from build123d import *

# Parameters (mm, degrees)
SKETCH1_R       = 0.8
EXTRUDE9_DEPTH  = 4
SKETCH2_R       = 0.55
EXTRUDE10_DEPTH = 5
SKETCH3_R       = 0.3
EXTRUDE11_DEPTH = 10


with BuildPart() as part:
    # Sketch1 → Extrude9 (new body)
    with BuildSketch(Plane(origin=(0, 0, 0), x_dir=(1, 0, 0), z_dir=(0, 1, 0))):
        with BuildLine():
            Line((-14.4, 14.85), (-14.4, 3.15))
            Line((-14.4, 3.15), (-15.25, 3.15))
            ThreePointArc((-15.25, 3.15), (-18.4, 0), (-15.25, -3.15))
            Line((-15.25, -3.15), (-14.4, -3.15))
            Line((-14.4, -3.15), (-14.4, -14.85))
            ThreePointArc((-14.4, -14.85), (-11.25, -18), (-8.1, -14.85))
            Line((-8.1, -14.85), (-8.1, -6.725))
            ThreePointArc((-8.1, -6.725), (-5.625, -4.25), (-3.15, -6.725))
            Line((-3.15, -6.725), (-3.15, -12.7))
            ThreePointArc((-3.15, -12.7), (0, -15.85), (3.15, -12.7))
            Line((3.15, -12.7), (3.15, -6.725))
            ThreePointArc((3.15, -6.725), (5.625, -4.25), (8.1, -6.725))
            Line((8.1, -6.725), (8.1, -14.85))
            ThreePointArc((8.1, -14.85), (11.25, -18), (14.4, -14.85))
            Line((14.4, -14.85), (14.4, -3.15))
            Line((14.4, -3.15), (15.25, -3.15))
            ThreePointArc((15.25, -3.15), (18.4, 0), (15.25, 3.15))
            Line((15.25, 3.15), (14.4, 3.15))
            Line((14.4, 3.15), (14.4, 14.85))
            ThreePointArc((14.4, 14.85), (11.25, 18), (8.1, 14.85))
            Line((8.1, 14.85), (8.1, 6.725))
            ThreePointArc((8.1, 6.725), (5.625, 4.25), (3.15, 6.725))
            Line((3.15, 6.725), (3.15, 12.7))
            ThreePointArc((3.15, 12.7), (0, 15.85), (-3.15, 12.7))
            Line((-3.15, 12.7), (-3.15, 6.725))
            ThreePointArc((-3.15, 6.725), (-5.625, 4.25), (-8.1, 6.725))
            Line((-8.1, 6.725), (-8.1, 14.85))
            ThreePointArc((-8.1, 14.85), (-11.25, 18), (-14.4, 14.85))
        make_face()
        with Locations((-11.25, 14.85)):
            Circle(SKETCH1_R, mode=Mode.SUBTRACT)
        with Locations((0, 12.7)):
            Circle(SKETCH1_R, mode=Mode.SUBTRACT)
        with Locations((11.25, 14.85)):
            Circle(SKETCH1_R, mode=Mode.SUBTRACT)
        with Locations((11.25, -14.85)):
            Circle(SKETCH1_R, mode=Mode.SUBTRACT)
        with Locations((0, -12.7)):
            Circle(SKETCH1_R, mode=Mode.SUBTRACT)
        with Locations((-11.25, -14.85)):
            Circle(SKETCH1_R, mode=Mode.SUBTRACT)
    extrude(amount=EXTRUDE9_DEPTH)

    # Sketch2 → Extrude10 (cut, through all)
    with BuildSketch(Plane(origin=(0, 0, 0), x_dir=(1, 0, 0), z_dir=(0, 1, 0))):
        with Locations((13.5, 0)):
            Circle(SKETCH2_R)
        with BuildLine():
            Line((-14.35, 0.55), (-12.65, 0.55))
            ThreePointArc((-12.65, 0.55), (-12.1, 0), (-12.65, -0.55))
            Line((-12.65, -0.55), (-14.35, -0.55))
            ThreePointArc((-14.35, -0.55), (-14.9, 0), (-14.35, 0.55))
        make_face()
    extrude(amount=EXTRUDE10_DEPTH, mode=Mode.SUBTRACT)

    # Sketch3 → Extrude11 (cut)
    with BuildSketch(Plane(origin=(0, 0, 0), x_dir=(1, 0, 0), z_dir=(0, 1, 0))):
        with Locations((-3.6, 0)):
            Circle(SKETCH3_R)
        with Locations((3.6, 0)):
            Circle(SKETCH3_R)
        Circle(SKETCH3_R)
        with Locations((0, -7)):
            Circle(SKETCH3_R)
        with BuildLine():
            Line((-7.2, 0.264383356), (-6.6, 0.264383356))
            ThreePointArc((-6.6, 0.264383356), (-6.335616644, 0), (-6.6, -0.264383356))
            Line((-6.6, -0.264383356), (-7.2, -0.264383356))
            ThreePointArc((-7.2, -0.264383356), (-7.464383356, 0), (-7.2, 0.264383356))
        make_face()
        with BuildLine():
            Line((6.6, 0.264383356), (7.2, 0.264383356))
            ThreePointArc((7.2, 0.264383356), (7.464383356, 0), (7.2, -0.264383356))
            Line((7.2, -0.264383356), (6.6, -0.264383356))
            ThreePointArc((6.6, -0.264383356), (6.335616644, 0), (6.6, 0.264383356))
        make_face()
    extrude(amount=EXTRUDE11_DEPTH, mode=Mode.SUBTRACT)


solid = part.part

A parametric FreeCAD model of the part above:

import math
import FreeCAD as App
import Part
import Sketcher

doc = App.newDocument("Part")
params = doc.addObject("Spreadsheet::Sheet", "Params")
for row, (alias, value) in enumerate([
    ("sketch1_diameter", "1.6 mm"),
    ("sketch1_radius", "3.15 mm"),
    ("sketch1_height", "11.7 mm"),
    ("pad1_length", "4 mm"),
    ("sketch2_diameter", "1.1 mm"),
    ("sketch2_width", "1.7 mm"),
    ("sketch3_diameter", "0.6 mm"),
    ("sketch3_width", "0.6 mm"),
    ("pocket2_length", "10 mm"),
], start=1):
    params.set(f"A{row}", alias)
    params.set(f"B{row}", "=" + value)
    params.setAlias(f"B{row}", alias)

body = doc.addObject("PartDesign::Body", "Body")

# Sketch on XZ plane
sketch1 = doc.addObject("Sketcher::SketchObject", "Sketch")
body.addObject(sketch1)
sketch1.AttachmentSupport = (doc.XZ_Plane, [""])
sketch1.MapMode = "FlatFace"
sketch1.addGeometry(Part.LineSegment(App.Vector(-14.4, -14.85, 0), App.Vector(-14.4, -3.15, 0)), False)
sketch1.addGeometry(Part.LineSegment(App.Vector(-14.4, -3.15, 0), App.Vector(-15.25, -3.15, 0)), False)
sketch1.addGeometry(Part.ArcOfCircle(Part.Circle(App.Vector(-15.25, 0, 0), App.Vector(0, 0, 1), 3.15), math.radians(90), math.radians(270)), False)
sketch1.addGeometry(Part.LineSegment(App.Vector(-15.25, 3.15, 0), App.Vector(-14.4, 3.15, 0)), False)
sketch1.addGeometry(Part.LineSegment(App.Vector(-14.4, 3.15, 0), App.Vector(-14.4, 14.85, 0)), False)
sketch1.addGeometry(Part.ArcOfCircle(Part.Circle(App.Vector(-11.25, 14.85, 0), App.Vector(0, 0, 1), 3.15), math.radians(0), math.radians(180)), False)
sketch1.addGeometry(Part.LineSegment(App.Vector(-8.1, 14.85, 0), App.Vector(-8.1, 6.725, 0)), False)
sketch1.addGeometry(Part.ArcOfCircle(Part.Circle(App.Vector(-5.625, 6.725, 0), App.Vector(0, 0, 1), 2.475), math.radians(180), math.radians(360)), False)
sketch1.addGeometry(Part.LineSegment(App.Vector(-3.15, 6.725, 0), App.Vector(-3.15, 12.7, 0)), False)
sketch1.addGeometry(Part.ArcOfCircle(Part.Circle(App.Vector(0, 12.7, 0), App.Vector(0, 0, 1), 3.15), math.radians(0), math.radians(180)), False)
sketch1.addGeometry(Part.LineSegment(App.Vector(3.15, 12.7, 0), App.Vector(3.15, 6.725, 0)), False)
sketch1.addGeometry(Part.ArcOfCircle(Part.Circle(App.Vector(5.625, 6.725, 0), App.Vector(0, 0, 1), 2.475), math.radians(180), math.radians(360)), False)
sketch1.addGeometry(Part.LineSegment(App.Vector(8.1, 6.725, 0), App.Vector(8.1, 14.85, 0)), False)
sketch1.addGeometry(Part.ArcOfCircle(Part.Circle(App.Vector(11.25, 14.85, 0), App.Vector(0, 0, 1), 3.15), math.radians(0), math.radians(180)), False)
sketch1.addGeometry(Part.LineSegment(App.Vector(14.4, 14.85, 0), App.Vector(14.4, 3.15, 0)), False)
sketch1.addGeometry(Part.LineSegment(App.Vector(14.4, 3.15, 0), App.Vector(15.25, 3.15, 0)), False)
sketch1.addGeometry(Part.ArcOfCircle(Part.Circle(App.Vector(15.25, 0, 0), App.Vector(0, 0, 1), 3.15), math.radians(-90), math.radians(90)), False)
sketch1.addGeometry(Part.LineSegment(App.Vector(15.25, -3.15, 0), App.Vector(14.4, -3.15, 0)), False)
sketch1.addGeometry(Part.LineSegment(App.Vector(14.4, -3.15, 0), App.Vector(14.4, -14.85, 0)), False)
sketch1.addGeometry(Part.ArcOfCircle(Part.Circle(App.Vector(11.25, -14.85, 0), App.Vector(0, 0, 1), 3.15), math.radians(180), math.radians(360)), False)
sketch1.addGeometry(Part.LineSegment(App.Vector(8.1, -14.85, 0), App.Vector(8.1, -6.725, 0)), False)
sketch1.addGeometry(Part.ArcOfCircle(Part.Circle(App.Vector(5.625, -6.725, 0), App.Vector(0, 0, 1), 2.475), math.radians(0), math.radians(180)), False)
sketch1.addGeometry(Part.LineSegment(App.Vector(3.15, -6.725, 0), App.Vector(3.15, -12.7, 0)), False)
sketch1.addGeometry(Part.ArcOfCircle(Part.Circle(App.Vector(0, -12.7, 0), App.Vector(0, 0, 1), 3.15), math.radians(180), math.radians(360)), False)
sketch1.addGeometry(Part.LineSegment(App.Vector(-3.15, -12.7, 0), App.Vector(-3.15, -6.725, 0)), False)
sketch1.addGeometry(Part.ArcOfCircle(Part.Circle(App.Vector(-5.625, -6.725, 0), App.Vector(0, 0, 1), 2.475), math.radians(0), math.radians(180)), False)
sketch1.addGeometry(Part.LineSegment(App.Vector(-8.1, -6.725, 0), App.Vector(-8.1, -14.85, 0)), False)
sketch1.addGeometry(Part.ArcOfCircle(Part.Circle(App.Vector(-11.25, -14.85, 0), App.Vector(0, 0, 1), 3.15), math.radians(180), math.radians(360)), False)
sketch1.addGeometry(Part.Circle(App.Vector(-11.25, 14.85, 0), App.Vector(0, 0, 1), 0.8), False)
sketch1.addGeometry(Part.Circle(App.Vector(0, 12.7, 0), App.Vector(0, 0, 1), 0.8), False)
sketch1.addGeometry(Part.Circle(App.Vector(11.25, 14.85, 0), App.Vector(0, 0, 1), 0.8), False)
sketch1.addGeometry(Part.Circle(App.Vector(-11.25, -14.85, 0), App.Vector(0, 0, 1), 0.8), False)
sketch1.addGeometry(Part.Circle(App.Vector(0, -12.7, 0), App.Vector(0, 0, 1), 0.8), False)
sketch1.addGeometry(Part.Circle(App.Vector(11.25, -14.85, 0), App.Vector(0, 0, 1), 0.8), False)
sketch1.addConstraint(Sketcher.Constraint("Coincident", 0, 2, 1, 1))
sketch1.addConstraint(Sketcher.Constraint("Tangent", 1, 2, 2, 2))
sketch1.addConstraint(Sketcher.Constraint("Tangent", 2, 1, 3, 1))
sketch1.addConstraint(Sketcher.Constraint("Coincident", 3, 2, 4, 1))
sketch1.addConstraint(Sketcher.Constraint("Tangent", 4, 2, 5, 2))
sketch1.addConstraint(Sketcher.Constraint("Tangent", 5, 1, 6, 1))
sketch1.addConstraint(Sketcher.Constraint("Tangent", 6, 2, 7, 1))
sketch1.addConstraint(Sketcher.Constraint("Tangent", 7, 2, 8, 1))
sketch1.addConstraint(Sketcher.Constraint("Tangent", 8, 2, 9, 2))
sketch1.addConstraint(Sketcher.Constraint("Tangent", 9, 1, 10, 1))
sketch1.addConstraint(Sketcher.Constraint("Tangent", 10, 2, 11, 1))
sketch1.addConstraint(Sketcher.Constraint("Tangent", 11, 2, 12, 1))
sketch1.addConstraint(Sketcher.Constraint("Tangent", 12, 2, 13, 2))
sketch1.addConstraint(Sketcher.Constraint("Tangent", 13, 1, 14, 1))
sketch1.addConstraint(Sketcher.Constraint("Coincident", 14, 2, 15, 1))
sketch1.addConstraint(Sketcher.Constraint("Tangent", 15, 2, 16, 2))
sketch1.addConstraint(Sketcher.Constraint("Tangent", 16, 1, 17, 1))
sketch1.addConstraint(Sketcher.Constraint("Coincident", 17, 2, 18, 1))
sketch1.addConstraint(Sketcher.Constraint("Tangent", 18, 2, 19, 2))
sketch1.addConstraint(Sketcher.Constraint("Tangent", 19, 1, 20, 1))
sketch1.addConstraint(Sketcher.Constraint("Tangent", 20, 2, 21, 1))
sketch1.addConstraint(Sketcher.Constraint("Tangent", 21, 2, 22, 1))
sketch1.addConstraint(Sketcher.Constraint("Tangent", 22, 2, 23, 2))
sketch1.addConstraint(Sketcher.Constraint("Tangent", 23, 1, 24, 1))
sketch1.addConstraint(Sketcher.Constraint("Tangent", 24, 2, 25, 1))
sketch1.addConstraint(Sketcher.Constraint("Tangent", 25, 2, 26, 1))
sketch1.addConstraint(Sketcher.Constraint("Tangent", 26, 2, 27, 2))
sketch1.addConstraint(Sketcher.Constraint("Tangent", 27, 1, 0, 1))
sketch1.addConstraint(Sketcher.Constraint("Vertical", 0))
sketch1.addConstraint(Sketcher.Constraint("Horizontal", 1))
sketch1.addConstraint(Sketcher.Constraint("Horizontal", 3))
sketch1.addConstraint(Sketcher.Constraint("Vertical", 4))
sketch1.addConstraint(Sketcher.Constraint("Vertical", 6))
sketch1.addConstraint(Sketcher.Constraint("Vertical", 8))
sketch1.addConstraint(Sketcher.Constraint("Vertical", 10))
sketch1.addConstraint(Sketcher.Constraint("Vertical", 12))
sketch1.addConstraint(Sketcher.Constraint("Vertical", 14))
sketch1.addConstraint(Sketcher.Constraint("Horizontal", 15))
sketch1.addConstraint(Sketcher.Constraint("Horizontal", 17))
sketch1.addConstraint(Sketcher.Constraint("Vertical", 18))
sketch1.addConstraint(Sketcher.Constraint("Vertical", 20))
sketch1.addConstraint(Sketcher.Constraint("Vertical", 22))
sketch1.addConstraint(Sketcher.Constraint("Vertical", 24))
sketch1.addConstraint(Sketcher.Constraint("Vertical", 26))
sketch1.addConstraint(Sketcher.Constraint("Coincident", 28, 3, 5, 3))
sketch1.addConstraint(Sketcher.Constraint("Coincident", 29, 3, 9, 3))
sketch1.addConstraint(Sketcher.Constraint("Coincident", 30, 3, 13, 3))
sketch1.addConstraint(Sketcher.Constraint("Coincident", 31, 3, 27, 3))
sketch1.addConstraint(Sketcher.Constraint("Coincident", 32, 3, 23, 3))
sketch1.addConstraint(Sketcher.Constraint("Coincident", 33, 3, 19, 3))
sketch1.addConstraint(Sketcher.Constraint("Equal", 2, 5))
sketch1.addConstraint(Sketcher.Constraint("Equal", 5, 9))
sketch1.addConstraint(Sketcher.Constraint("Equal", 7, 11))
sketch1.addConstraint(Sketcher.Constraint("Equal", 9, 13))
sketch1.addConstraint(Sketcher.Constraint("Equal", 13, 16))
sketch1.addConstraint(Sketcher.Constraint("Equal", 16, 19))
sketch1.addConstraint(Sketcher.Constraint("Equal", 11, 21))
sketch1.addConstraint(Sketcher.Constraint("Equal", 19, 23))
sketch1.addConstraint(Sketcher.Constraint("Equal", 21, 25))
sketch1.addConstraint(Sketcher.Constraint("Equal", 23, 27))
sketch1.addConstraint(Sketcher.Constraint("Equal", 28, 29))
sketch1.addConstraint(Sketcher.Constraint("Equal", 29, 30))
sketch1.addConstraint(Sketcher.Constraint("Equal", 30, 31))
sketch1.addConstraint(Sketcher.Constraint("Equal", 31, 32))
sketch1.addConstraint(Sketcher.Constraint("Equal", 32, 33))
sketch1.addConstraint(Sketcher.Constraint("Symmetric", 2, 3, 16, 3, -1, 1))
sketch1.addConstraint(Sketcher.Constraint("Symmetric", 5, 3, 19, 3, -1, 1))
sketch1.addConstraint(Sketcher.Constraint("Symmetric", 7, 3, 11, 3, -2))
sketch1.addConstraint(Sketcher.Constraint("PointOnObject", 2, 3, -1))
sketch1.addConstraint(Sketcher.Constraint("Horizontal", 5, 3, 13, 3))
sketch1.addConstraint(Sketcher.Constraint("Horizontal", 21, 3, 25, 3))
sketch1.addConstraint(Sketcher.Constraint("Horizontal", 19, 3, 27, 3))
sketch1.addConstraint(Sketcher.Constraint("Equal", 12, 20))
sketch1.addConstraint(Sketcher.Constraint("Equal", 10, 22))
sketch1.addConstraint(Sketcher.Constraint("Diameter", 28, 1.6))
sketch1.addConstraint(Sketcher.Constraint("Radius", 2, 3.15))
sketch1.addConstraint(Sketcher.Constraint("DistanceY", 0, 1, 0, 2, 11.7))
sketch1.addConstraint(Sketcher.Constraint("Radius", 7, 2.475))
sketch1.addConstraint(Sketcher.Constraint("DistanceX", 2, 3, 5, 3, 4.0))
sketch1.addConstraint(Sketcher.Constraint("DistanceY", -1, 1, 9, 3, 12.7))
sketch1.addConstraint(Sketcher.Constraint("DistanceY", 6, 2, 6, 1, 8.125))
sketch1.setExpression("Constraints[74]", "Params.sketch1_diameter")
sketch1.setExpression("Constraints[75]", "Params.sketch1_radius")
sketch1.setExpression("Constraints[76]", "Params.sketch1_height")
pad1 = doc.addObject("PartDesign::Pad", "Pad")
body.addObject(pad1)
pad1.Profile = sketch1
pad1.setExpression("Length", "Params.pad1_length")
pad1.Reversed = True

# Sketch on XZ plane
sketch2 = doc.addObject("Sketcher::SketchObject", "Sketch001")
body.addObject(sketch2)
sketch2.AttachmentSupport = (doc.XZ_Plane, [""])
sketch2.MapMode = "FlatFace"
sketch2.addGeometry(Part.Circle(App.Vector(13.5, 0, 0), App.Vector(0, 0, 1), 0.55), False)
sketch2.addGeometry(Part.LineSegment(App.Vector(-12.65, -0.55, 0), App.Vector(-14.35, -0.55, 0)), False)
sketch2.addGeometry(Part.ArcOfCircle(Part.Circle(App.Vector(-14.35, 0, 0), App.Vector(0, 0, 1), 0.55), math.radians(90), math.radians(270)), False)
sketch2.addGeometry(Part.LineSegment(App.Vector(-14.35, 0.55, 0), App.Vector(-12.65, 0.55, 0)), False)
sketch2.addGeometry(Part.ArcOfCircle(Part.Circle(App.Vector(-12.65, 0, 0), App.Vector(0, 0, 1), 0.55), math.radians(-90), math.radians(90)), False)
sketch2.addConstraint(Sketcher.Constraint("Tangent", 1, 2, 2, 2))
sketch2.addConstraint(Sketcher.Constraint("Tangent", 2, 1, 3, 1))
sketch2.addConstraint(Sketcher.Constraint("Tangent", 3, 2, 4, 2))
sketch2.addConstraint(Sketcher.Constraint("Tangent", 4, 1, 1, 1))
sketch2.addConstraint(Sketcher.Constraint("Horizontal", 1))
sketch2.addConstraint(Sketcher.Constraint("Horizontal", 3))
sketch2.addConstraint(Sketcher.Constraint("Equal", 0, 2))
sketch2.addConstraint(Sketcher.Constraint("PointOnObject", 0, 3, -1))
sketch2.addConstraint(Sketcher.Constraint("PointOnObject", 2, 3, -1))
sketch2.addConstraint(Sketcher.Constraint("Diameter", 0, 1.1))
sketch2.addConstraint(Sketcher.Constraint("DistanceX", 1, 2, 1, 1, 1.7))
sketch2.addConstraint(Sketcher.Constraint("DistanceX", -1, 1, 0, 3, 13.5))
sketch2.addConstraint(Sketcher.Constraint("DistanceX", 2, 3, -1, 1, 14.35))
sketch2.setExpression("Constraints[9]", "Params.sketch2_diameter")
sketch2.setExpression("Constraints[10]", "Params.sketch2_width")
pocket1 = doc.addObject("PartDesign::Pocket", "Pocket")
body.addObject(pocket1)
pocket1.Profile = sketch2
pocket1.Type = "ThroughAll"

# Sketch on XZ plane
sketch3 = doc.addObject("Sketcher::SketchObject", "Sketch002")
body.addObject(sketch3)
sketch3.AttachmentSupport = (doc.XZ_Plane, [""])
sketch3.MapMode = "FlatFace"
sketch3.addGeometry(Part.Circle(App.Vector(-3.6, 0, 0), App.Vector(0, 0, 1), 0.3), False)
sketch3.addGeometry(Part.Circle(App.Vector(3.6, 0, 0), App.Vector(0, 0, 1), 0.3), False)
sketch3.addGeometry(Part.Circle(App.Vector(0, 0, 0), App.Vector(0, 0, 1), 0.3), False)
sketch3.addGeometry(Part.Circle(App.Vector(0, 7, 0), App.Vector(0, 0, 1), 0.3), False)
sketch3.addGeometry(Part.LineSegment(App.Vector(-6.6, -0.264383, 0), App.Vector(-7.2, -0.264383, 0)), False)
sketch3.addGeometry(Part.ArcOfCircle(Part.Circle(App.Vector(-7.2, 0, 0), App.Vector(0, 0, 1), 0.264383), math.radians(90), math.radians(270)), False)
sketch3.addGeometry(Part.LineSegment(App.Vector(-7.2, 0.264383, 0), App.Vector(-6.6, 0.264383, 0)), False)
sketch3.addGeometry(Part.ArcOfCircle(Part.Circle(App.Vector(-6.6, 0, 0), App.Vector(0, 0, 1), 0.264383), math.radians(-90), math.radians(90)), False)
sketch3.addGeometry(Part.LineSegment(App.Vector(7.2, -0.264383, 0), App.Vector(6.6, -0.264383, 0)), False)
sketch3.addGeometry(Part.ArcOfCircle(Part.Circle(App.Vector(6.6, 0, 0), App.Vector(0, 0, 1), 0.264383), math.radians(90), math.radians(270)), False)
sketch3.addGeometry(Part.LineSegment(App.Vector(6.6, 0.264383, 0), App.Vector(7.2, 0.264383, 0)), False)
sketch3.addGeometry(Part.ArcOfCircle(Part.Circle(App.Vector(7.2, 0, 0), App.Vector(0, 0, 1), 0.264383), math.radians(-90), math.radians(90)), False)
sketch3.addConstraint(Sketcher.Constraint("Tangent", 4, 2, 5, 2))
sketch3.addConstraint(Sketcher.Constraint("Tangent", 5, 1, 6, 1))
sketch3.addConstraint(Sketcher.Constraint("Tangent", 6, 2, 7, 2))
sketch3.addConstraint(Sketcher.Constraint("Tangent", 7, 1, 4, 1))
sketch3.addConstraint(Sketcher.Constraint("Tangent", 8, 2, 9, 2))
sketch3.addConstraint(Sketcher.Constraint("Tangent", 9, 1, 10, 1))
sketch3.addConstraint(Sketcher.Constraint("Tangent", 10, 2, 11, 2))
sketch3.addConstraint(Sketcher.Constraint("Tangent", 11, 1, 8, 1))
sketch3.addConstraint(Sketcher.Constraint("Horizontal", 4))
sketch3.addConstraint(Sketcher.Constraint("Horizontal", 6))
sketch3.addConstraint(Sketcher.Constraint("Horizontal", 8))
sketch3.addConstraint(Sketcher.Constraint("Horizontal", 10))
sketch3.addConstraint(Sketcher.Constraint("Coincident", 2, 3, -1, 1))
sketch3.addConstraint(Sketcher.Constraint("Equal", 0, 1))
sketch3.addConstraint(Sketcher.Constraint("Equal", 1, 2))
sketch3.addConstraint(Sketcher.Constraint("Equal", 2, 3))
sketch3.addConstraint(Sketcher.Constraint("Equal", 7, 9))
sketch3.addConstraint(Sketcher.Constraint("Symmetric", 0, 3, 1, 3, -1, 1))
sketch3.addConstraint(Sketcher.Constraint("Symmetric", 7, 3, 9, 3, -1, 1))
sketch3.addConstraint(Sketcher.Constraint("Symmetric", 5, 3, 11, 3, -2))
sketch3.addConstraint(Sketcher.Constraint("PointOnObject", 0, 3, -1))
sketch3.addConstraint(Sketcher.Constraint("PointOnObject", 3, 3, -2))
sketch3.addConstraint(Sketcher.Constraint("Diameter", 0, 0.6))
sketch3.addConstraint(Sketcher.Constraint("DistanceX", 4, 2, 4, 1, 0.6))
sketch3.addConstraint(Sketcher.Constraint("DistanceY", -1, 1, 3, 3, 7.0))
sketch3.addConstraint(Sketcher.Constraint("DistanceX", 7, 3, 0, 3, 3.0))
sketch3.addConstraint(Sketcher.Constraint("DistanceX", 0, 3, -1, 1, 3.6))
sketch3.addConstraint(Sketcher.Constraint("Radius", 5, 0.264383))
sketch3.setExpression("Constraints[22]", "Params.sketch3_diameter")
sketch3.setExpression("Constraints[23]", "Params.sketch3_width")
pocket2 = doc.addObject("PartDesign::Pocket", "Pocket001")
body.addObject(pocket2)
pocket2.Profile = sketch3
pocket2.setExpression("Length", "Params.pocket2_length")

doc.recompute()
